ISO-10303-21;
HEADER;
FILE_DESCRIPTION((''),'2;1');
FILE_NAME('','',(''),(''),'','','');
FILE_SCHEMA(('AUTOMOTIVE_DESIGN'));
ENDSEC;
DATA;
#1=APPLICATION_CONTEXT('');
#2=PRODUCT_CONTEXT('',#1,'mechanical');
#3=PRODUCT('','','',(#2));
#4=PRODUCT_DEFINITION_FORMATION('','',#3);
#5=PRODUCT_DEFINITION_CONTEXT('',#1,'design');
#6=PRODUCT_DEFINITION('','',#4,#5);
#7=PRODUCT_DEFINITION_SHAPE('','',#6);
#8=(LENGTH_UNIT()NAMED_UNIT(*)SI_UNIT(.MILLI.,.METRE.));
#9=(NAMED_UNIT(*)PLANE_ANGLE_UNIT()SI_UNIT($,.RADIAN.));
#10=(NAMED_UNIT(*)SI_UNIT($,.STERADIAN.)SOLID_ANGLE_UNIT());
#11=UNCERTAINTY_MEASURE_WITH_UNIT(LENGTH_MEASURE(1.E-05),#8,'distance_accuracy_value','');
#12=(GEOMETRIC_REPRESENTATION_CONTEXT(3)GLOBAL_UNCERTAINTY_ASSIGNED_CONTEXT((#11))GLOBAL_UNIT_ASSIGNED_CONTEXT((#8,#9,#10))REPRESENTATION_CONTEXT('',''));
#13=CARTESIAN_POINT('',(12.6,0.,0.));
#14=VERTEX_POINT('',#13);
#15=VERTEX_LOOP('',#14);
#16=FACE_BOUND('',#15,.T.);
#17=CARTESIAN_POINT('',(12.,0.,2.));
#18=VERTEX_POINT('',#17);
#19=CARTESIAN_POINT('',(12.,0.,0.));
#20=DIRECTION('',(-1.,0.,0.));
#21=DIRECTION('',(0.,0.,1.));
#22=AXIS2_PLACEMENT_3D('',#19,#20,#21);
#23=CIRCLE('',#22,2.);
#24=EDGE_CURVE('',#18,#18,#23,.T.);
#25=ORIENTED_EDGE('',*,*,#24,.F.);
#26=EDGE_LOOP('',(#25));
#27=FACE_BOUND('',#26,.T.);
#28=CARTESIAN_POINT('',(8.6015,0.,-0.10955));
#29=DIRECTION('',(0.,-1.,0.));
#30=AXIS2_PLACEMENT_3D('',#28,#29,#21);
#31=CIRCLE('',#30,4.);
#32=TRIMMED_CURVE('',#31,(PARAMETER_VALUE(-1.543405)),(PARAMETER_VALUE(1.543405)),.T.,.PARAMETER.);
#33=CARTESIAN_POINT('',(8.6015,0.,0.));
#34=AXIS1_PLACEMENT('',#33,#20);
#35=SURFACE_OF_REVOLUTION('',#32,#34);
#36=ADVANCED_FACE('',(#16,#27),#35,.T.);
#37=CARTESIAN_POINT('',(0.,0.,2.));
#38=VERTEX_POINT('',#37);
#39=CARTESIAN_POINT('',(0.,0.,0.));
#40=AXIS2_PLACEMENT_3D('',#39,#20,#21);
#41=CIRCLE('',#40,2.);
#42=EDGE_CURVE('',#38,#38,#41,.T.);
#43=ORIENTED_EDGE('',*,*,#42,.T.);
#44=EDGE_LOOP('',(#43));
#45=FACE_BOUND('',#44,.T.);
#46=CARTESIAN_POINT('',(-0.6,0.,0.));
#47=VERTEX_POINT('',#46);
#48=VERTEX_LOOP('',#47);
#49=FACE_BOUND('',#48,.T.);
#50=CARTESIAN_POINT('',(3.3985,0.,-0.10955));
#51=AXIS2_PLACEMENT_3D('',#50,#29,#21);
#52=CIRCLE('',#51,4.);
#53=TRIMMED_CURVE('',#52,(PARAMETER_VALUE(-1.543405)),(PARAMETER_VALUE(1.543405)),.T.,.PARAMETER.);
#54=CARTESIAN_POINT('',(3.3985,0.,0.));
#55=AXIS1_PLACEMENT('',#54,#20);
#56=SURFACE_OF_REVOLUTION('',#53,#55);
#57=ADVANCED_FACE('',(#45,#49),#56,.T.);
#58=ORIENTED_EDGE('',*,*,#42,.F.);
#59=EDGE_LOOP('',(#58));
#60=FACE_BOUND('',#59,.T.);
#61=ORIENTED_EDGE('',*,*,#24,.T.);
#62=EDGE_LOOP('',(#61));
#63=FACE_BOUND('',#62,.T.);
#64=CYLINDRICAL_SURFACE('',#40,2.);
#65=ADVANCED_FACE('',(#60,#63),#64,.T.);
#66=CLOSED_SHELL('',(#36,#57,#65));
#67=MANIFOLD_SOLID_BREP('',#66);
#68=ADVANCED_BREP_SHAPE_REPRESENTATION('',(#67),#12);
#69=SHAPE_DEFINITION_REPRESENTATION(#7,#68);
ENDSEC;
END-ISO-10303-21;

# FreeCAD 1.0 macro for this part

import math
import FreeCAD as App
import Part
import Sketcher

V = App.Vector

doc = App.newDocument("Part")
body = doc.addObject("PartDesign::Body", "Body")

sketch1 = body.newObject("Sketcher::SketchObject", "Sketch")
sketch1.AttachmentSupport = (doc.getObject("XY_Plane"), [""])
sketch1.MapMode = "FlatFace"
sketch1.addGeometry(Part.LineSegment(V(12, 2, 0), V(0, 2, 0)), False)
sketch1.addGeometry(Part.ArcOfCircle(Part.Circle(V(3.4, -0.1, 0), V(0, 0, 1), 4), math.radians(148), math.radians(178)), False)
sketch1.addGeometry(Part.LineSegment(V(-0.6, 0, 0), V(12.6, 0, 0)), False)
sketch1.addGeometry(Part.ArcOfCircle(Part.Circle(V(8.6, -0.1, 0), V(0, 0, 1), 4), math.radians(2), math.radians(32)), False)
sketch1.addConstraint(Sketcher.Constraint("Coincident", 0, 2, 1, 1))
sketch1.addConstraint(Sketcher.Constraint("Coincident", 1, 2, 2, 1))
sketch1.addConstraint(Sketcher.Constraint("Coincident", 2, 2, 3, 1))
sketch1.addConstraint(Sketcher.Constraint("Coincident", 3, 2, 0, 1))
sketch1.addConstraint(Sketcher.Constraint("Horizontal", 0))
sketch1.addConstraint(Sketcher.Constraint("Horizontal", 2))
sketch1.addConstraint(Sketcher.Constraint("Equal", 1, 3))
sketch1.addConstraint(Sketcher.Constraint("PointOnObject", 0, 2, -2))
sketch1.addConstraint(Sketcher.Constraint("PointOnObject", 1, 2, -1))
sketch1.addConstraint(Sketcher.Constraint("Horizontal", 1, 3, 3, 3))
sketch1.addConstraint(Sketcher.Constraint("Radius", 1, 4.0))
sketch1.addConstraint(Sketcher.Constraint("DistanceX", 0, 2, 0, 1, 12.0))
sketch1.addConstraint(Sketcher.Constraint("DistanceX", 2, 1, 2, 2, 13.2))
sketch1.addConstraint(Sketcher.Constraint("DistanceY", -1, 1, 0, 2, 2.0))
revolution = body.newObject("PartDesign::Revolution", "Revolution")
revolution.Profile = sketch1
revolution.ReferenceAxis = (sketch1, ["H_Axis"])
revolution.Angle = 360

doc.recompute()
